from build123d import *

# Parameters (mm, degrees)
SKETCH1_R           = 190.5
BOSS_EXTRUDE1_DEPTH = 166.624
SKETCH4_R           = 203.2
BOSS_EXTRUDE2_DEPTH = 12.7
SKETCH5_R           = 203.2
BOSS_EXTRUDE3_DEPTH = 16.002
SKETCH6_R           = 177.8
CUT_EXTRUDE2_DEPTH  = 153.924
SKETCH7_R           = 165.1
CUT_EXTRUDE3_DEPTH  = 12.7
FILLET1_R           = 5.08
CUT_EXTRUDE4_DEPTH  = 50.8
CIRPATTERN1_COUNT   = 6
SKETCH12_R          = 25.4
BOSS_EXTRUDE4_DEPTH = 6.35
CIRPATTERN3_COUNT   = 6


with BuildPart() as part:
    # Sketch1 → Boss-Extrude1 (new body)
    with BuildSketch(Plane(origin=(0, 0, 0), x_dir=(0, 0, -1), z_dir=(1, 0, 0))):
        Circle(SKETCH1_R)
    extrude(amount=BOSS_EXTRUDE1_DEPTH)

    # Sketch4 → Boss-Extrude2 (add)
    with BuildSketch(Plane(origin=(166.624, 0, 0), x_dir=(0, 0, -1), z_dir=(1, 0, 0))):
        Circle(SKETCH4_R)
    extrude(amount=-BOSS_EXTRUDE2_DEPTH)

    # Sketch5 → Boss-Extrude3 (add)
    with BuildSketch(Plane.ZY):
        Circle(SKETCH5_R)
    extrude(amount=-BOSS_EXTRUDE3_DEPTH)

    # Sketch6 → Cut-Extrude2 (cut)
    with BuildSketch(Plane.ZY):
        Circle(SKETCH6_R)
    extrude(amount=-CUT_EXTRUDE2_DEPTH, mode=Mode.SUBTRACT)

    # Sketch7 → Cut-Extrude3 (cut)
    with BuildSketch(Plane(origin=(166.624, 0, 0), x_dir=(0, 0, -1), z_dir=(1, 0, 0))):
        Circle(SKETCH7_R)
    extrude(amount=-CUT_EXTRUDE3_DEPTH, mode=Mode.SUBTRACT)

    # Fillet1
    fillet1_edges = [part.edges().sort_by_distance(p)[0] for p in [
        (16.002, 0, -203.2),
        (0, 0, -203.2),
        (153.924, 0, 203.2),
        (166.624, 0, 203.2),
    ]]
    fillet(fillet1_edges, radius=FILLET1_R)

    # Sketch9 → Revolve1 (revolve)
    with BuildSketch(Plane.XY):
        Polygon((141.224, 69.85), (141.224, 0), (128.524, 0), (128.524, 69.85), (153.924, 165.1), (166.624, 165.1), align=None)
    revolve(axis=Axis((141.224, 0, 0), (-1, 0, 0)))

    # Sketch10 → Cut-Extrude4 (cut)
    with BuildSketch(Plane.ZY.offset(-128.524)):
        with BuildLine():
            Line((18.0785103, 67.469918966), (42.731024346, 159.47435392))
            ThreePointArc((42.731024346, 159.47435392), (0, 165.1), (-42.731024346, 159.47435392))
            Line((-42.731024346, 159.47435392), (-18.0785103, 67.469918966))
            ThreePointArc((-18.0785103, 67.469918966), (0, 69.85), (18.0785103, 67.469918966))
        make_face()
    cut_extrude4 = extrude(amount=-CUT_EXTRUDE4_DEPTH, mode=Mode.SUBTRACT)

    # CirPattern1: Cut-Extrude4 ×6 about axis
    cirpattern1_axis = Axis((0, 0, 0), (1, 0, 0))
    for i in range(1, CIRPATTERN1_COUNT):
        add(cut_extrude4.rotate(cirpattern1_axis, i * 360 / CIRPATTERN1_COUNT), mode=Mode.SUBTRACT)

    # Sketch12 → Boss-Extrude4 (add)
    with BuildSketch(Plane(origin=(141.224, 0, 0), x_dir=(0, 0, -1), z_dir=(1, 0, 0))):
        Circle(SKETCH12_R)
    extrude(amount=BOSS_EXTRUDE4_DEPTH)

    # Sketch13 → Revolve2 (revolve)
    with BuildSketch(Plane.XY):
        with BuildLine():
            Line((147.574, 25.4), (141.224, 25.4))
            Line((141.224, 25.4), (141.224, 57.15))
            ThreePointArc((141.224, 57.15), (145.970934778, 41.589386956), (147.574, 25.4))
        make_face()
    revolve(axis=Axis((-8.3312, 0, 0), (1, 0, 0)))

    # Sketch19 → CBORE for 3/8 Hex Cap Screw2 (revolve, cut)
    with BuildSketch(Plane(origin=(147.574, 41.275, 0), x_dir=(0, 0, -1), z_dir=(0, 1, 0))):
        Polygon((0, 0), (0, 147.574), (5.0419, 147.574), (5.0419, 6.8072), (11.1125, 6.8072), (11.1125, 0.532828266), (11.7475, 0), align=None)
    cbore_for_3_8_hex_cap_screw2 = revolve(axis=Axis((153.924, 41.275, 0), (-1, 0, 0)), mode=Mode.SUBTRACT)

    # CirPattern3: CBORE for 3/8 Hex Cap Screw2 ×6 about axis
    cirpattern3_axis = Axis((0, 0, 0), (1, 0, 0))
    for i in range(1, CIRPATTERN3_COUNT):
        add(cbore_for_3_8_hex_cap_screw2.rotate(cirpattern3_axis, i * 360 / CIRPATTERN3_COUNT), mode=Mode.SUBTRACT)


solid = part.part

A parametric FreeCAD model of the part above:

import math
import FreeCAD as App
import Part
import Sketcher
from FreeCAD import Vector
Q = App.Units.Quantity


def edges_at(feature, points):
    """Names of the edges that pass closest to the given points."""
    edges = feature.Shape.Edges
    near = lambda p: min(range(len(edges)), key=lambda i: edges[i].distToShape(Part.Vertex(*p))[0])
    return sorted({f"Edge{near(p) + 1}" for p in points})

doc = App.newDocument("Part")
body = doc.addObject("PartDesign::Body", "Body")

# Sketch on YZ plane
sketch1 = doc.addObject("Sketcher::SketchObject", "Sketch")
body.addObject(sketch1)
sketch1.AttachmentSupport = (doc.YZ_Plane, [""])
sketch1.MapMode = "FlatFace"
sketch1.addGeometry(Part.Circle(Vector(0, 0, 0), Vector(0, 0, 1), 190), False)
sketch1.addConstraint(Sketcher.Constraint("Coincident", 0, 3, -1, 1))
sketch1.addConstraint(Sketcher.Constraint("Diameter", 0, Q("15 in")))
pad1 = doc.addObject("PartDesign::Pad", "Pad")
body.addObject(pad1)
pad1.Profile = sketch1
pad1.Length = Q("6.56 in")

# Sketch on YZ plane
sketch2 = doc.addObject("Sketcher::SketchObject", "Sketch001")
body.addObject(sketch2)
sketch2.AttachmentSupport = (doc.YZ_Plane, [""])
sketch2.MapMode = "FlatFace"
sketch2.AttachmentOffset = App.Placement(Vector(0, 0, 6.56 * 25.4), App.Rotation())
sketch2.addGeometry(Part.Circle(Vector(0, 0, 0), Vector(0, 0, 1), 203), False)
sketch2.addConstraint(Sketcher.Constraint("Coincident", 0, 3, -1, 1))
sketch2.addConstraint(Sketcher.Constraint("Diameter", 0, Q("16 in")))
pad2 = doc.addObject("PartDesign::Pad", "Pad001")
body.addObject(pad2)
pad2.Profile = sketch2
pad2.Length = Q("0.5 in")
pad2.Reversed = True

# Sketch on YZ plane
sketch3 = doc.addObject("Sketcher::SketchObject", "Sketch002")
body.addObject(sketch3)
sketch3.AttachmentSupport = (doc.YZ_Plane, [""])
sketch3.MapMode = "FlatFace"
sketch3.addGeometry(Part.Circle(Vector(0, 0, 0), Vector(0, 0, 1), 203), False)
sketch3.addConstraint(Sketcher.Constraint("Coincident", 0, 3, -1, 1))
sketch3.addConstraint(Sketcher.Constraint("Diameter", 0, Q("16 in")))
pad3 = doc.addObject("PartDesign::Pad", "Pad002")
body.addObject(pad3)
pad3.Profile = sketch3
pad3.Length = Q("0.63 in")

# Sketch on YZ plane
sketch4 = doc.addObject("Sketcher::SketchObject", "Sketch003")
body.addObject(sketch4)
sketch4.AttachmentSupport = (doc.YZ_Plane, [""])
sketch4.MapMode = "FlatFace"
sketch4.addGeometry(Part.Circle(Vector(0, 0, 0), Vector(0, 0, 1), 178), False)
sketch4.addConstraint(Sketcher.Constraint("Coincident", 0, 3, -1, 1))
sketch4.addConstraint(Sketcher.Constraint("Diameter", 0, Q("14 in")))
pocket1 = doc.addObject("PartDesign::Pocket", "Pocket")
body.addObject(pocket1)
pocket1.Profile = sketch4
pocket1.Length = Q("6.06 in")
pocket1.Reversed = True

# Sketch on YZ plane
sketch5 = doc.addObject("Sketcher::SketchObject", "Sketch004")
body.addObject(sketch5)
sketch5.AttachmentSupport = (doc.YZ_Plane, [""])
sketch5.MapMode = "FlatFace"
sketch5.AttachmentOffset = App.Placement(Vector(0, 0, 6.56 * 25.4), App.Rotation())
sketch5.addGeometry(Part.Circle(Vector(0, 0, 0), Vector(0, 0, 1), 165), False)
sketch5.addConstraint(Sketcher.Constraint("Coincident", 0, 3, -1, 1))
sketch5.addConstraint(Sketcher.Constraint("Diameter", 0, Q("13 in")))
pocket2 = doc.addObject("PartDesign::Pocket", "Pocket001")
body.addObject(pocket2)
pocket2.Profile = sketch5
pocket2.Length = Q("0.5 in")
doc.recompute()

fillet = doc.addObject("PartDesign::Fillet", "Fillet")
body.addObject(fillet)
fillet.Base = (pocket2, edges_at(pocket2, [
    (16.002, 0, -203.2),
    (0, 0, -203.2),
    (153.924, 0, 203.2),
    (166.624, 0, 203.2),
]))
fillet.Radius = Q("0.2 in")

# Sketch on XY plane
sketch6 = doc.addObject("Sketcher::SketchObject", "Sketch005")
body.addObject(sketch6)
sketch6.AttachmentSupport = (doc.XY_Plane, [""])
sketch6.MapMode = "FlatFace"
sketch6.addGeometry(Part.LineSegment(Vector(141, 0, 0), Vector(141, 70, 0)), False)
sketch6.addGeometry(Part.LineSegment(Vector(141, 70, 0), Vector(167, 165, 0)), False)
sketch6.addGeometry(Part.LineSegment(Vector(167, 165, 0), Vector(154, 165, 0)), False)
sketch6.addGeometry(Part.LineSegment(Vector(154, 165, 0), Vector(129, 70, 0)), False)
sketch6.addGeometry(Part.LineSegment(Vector(129, 70, 0), Vector(129, 0, 0)), False)
sketch6.addGeometry(Part.LineSegment(Vector(129, 0, 0), Vector(141, 0, 0)), False)
sketch6.addConstraint(Sketcher.Constraint("Coincident", 0, 2, 1, 1))
sketch6.addConstraint(Sketcher.Constraint("Coincident", 1, 2, 2, 1))
sketch6.addConstraint(Sketcher.Constraint("Coincident", 2, 2, 3, 1))
sketch6.addConstraint(Sketcher.Constraint("Coincident", 3, 2, 4, 1))
sketch6.addConstraint(Sketcher.Constraint("Coincident", 4, 2, 5, 1))
sketch6.addConstraint(Sketcher.Constraint("Coincident", 5, 2, 0, 1))
sketch6.addConstraint(Sketcher.Constraint("Vertical", 0))
sketch6.addConstraint(Sketcher.Constraint("Horizontal", 2))
sketch6.addConstraint(Sketcher.Constraint("Vertical", 4))
sketch6.addConstraint(Sketcher.Constraint("Horizontal", 5))
sketch6.addConstraint(Sketcher.Constraint("PointOnObject", 4, 2, -1))
sketch6.addConstraint(Sketcher.Constraint("Parallel", 1, 3))
sketch6.addConstraint(Sketcher.Constraint("Horizontal", 0, 2, 3, 2))
sketch6.addConstraint(Sketcher.Constraint("DistanceX", 2, 2, 2, 1, Q("0.5 in")))
sketch6.addConstraint(Sketcher.Constraint("DistanceX", 0, 2, 1, 2, Q("1 in")))
sketch6.addConstraint(Sketcher.Constraint("DistanceY", 0, 1, 0, 2, Q("2.75 in")))
sketch6.addConstraint(Sketcher.Constraint("DistanceY", -1, 1, 1, 2, Q("6.5 in")))
sketch6.addConstraint(Sketcher.Constraint("DistanceX", -1, 1, 0, 2, Q("5.56 in")))
revolution = doc.addObject("PartDesign::Revolution", "Revolution")
body.addObject(revolution)
revolution.Profile = sketch6
revolution.ReferenceAxis = (sketch6, ["H_Axis"])
revolution.Angle = 360

# Sketch on YZ plane
sketch7 = doc.addObject("Sketcher::SketchObject", "Sketch006")
body.addObject(sketch7)
sketch7.AttachmentSupport = (doc.YZ_Plane, [""])
sketch7.MapMode = "FlatFace"
sketch7.AttachmentOffset = App.Placement(Vector(0, 0, 5.06 * 25.4), App.Rotation())
sketch7.addGeometry(Part.LineSegment(Vector(67, 18, 0), Vector(159, 43, 0)), False)
sketch7.addGeometry(Part.ArcOfCircle(Part.Circle(Vector(0, 0, 0), Vector(0, 0, 1), 165), math.radians(-15), math.radians(15)), False)
sketch7.addGeometry(Part.LineSegment(Vector(159, -43, 0), Vector(67, -18, 0)), False)
sketch7.addGeometry(Part.ArcOfCircle(Part.Circle(Vector(0, 0, 0), Vector(0, 0, 1), 70), math.radians(-15), math.radians(15)), False)
sketch7.addConstraint(Sketcher.Constraint("Coincident", 0, 2, 1, 2))
sketch7.addConstraint(Sketcher.Constraint("Coincident", 1, 1, 2, 1))
sketch7.addConstraint(Sketcher.Constraint("Coincident", 2, 2, 3, 1))
sketch7.addConstraint(Sketcher.Constraint("Coincident", 3, 2, 0, 1))
sketch7.addConstraint(Sketcher.Constraint("Coincident", 1, 3, -1, 1))
sketch7.addConstraint(Sketcher.Constraint("Coincident", 3, 3, -1, 1))
sketch7.addConstraint(Sketcher.Constraint("Vertical", 0, 2, 1, 1))
sketch7.addConstraint(Sketcher.Constraint("Vertical", 2, 2, 3, 2))
sketch7.addConstraint(Sketcher.Constraint("Radius", 1, Q("6.5 in")))
sketch7.addConstraint(Sketcher.Constraint("Radius", 3, Q("2.75 in")))
sketch7.addConstraint(Sketcher.Constraint("Angle", 0, Q("15 deg")))
sketch7.addConstraint(Sketcher.Constraint("DistanceX", -1, 1, 2, 2, 67.469919))
pocket3 = doc.addObject("PartDesign::Pocket", "Pocket002")
body.addObject(pocket3)
pocket3.Profile = sketch7
pocket3.Length = Q("2 in")
pocket3.Reversed = True
doc.recompute()

polarpattern = doc.addObject("PartDesign::PolarPattern", "PolarPattern")
body.addObject(polarpattern)
polarpattern.Originals = [pocket3]
polarpattern.Axis = (doc.X_Axis, [""])
polarpattern.Angle = 360
polarpattern.Occurrences = 6
body.Tip = polarpattern

# Sketch on YZ plane
sketch8 = doc.addObject("Sketcher::SketchObject", "Sketch007")
body.addObject(sketch8)
sketch8.AttachmentSupport = (doc.YZ_Plane, [""])
sketch8.MapMode = "FlatFace"
sketch8.AttachmentOffset = App.Placement(Vector(0, 0, 5.56 * 25.4), App.Rotation())
sketch8.addGeometry(Part.Circle(Vector(0, 0, 0), Vector(0, 0, 1), 25), False)
sketch8.addConstraint(Sketcher.Constraint("Coincident", 0, 3, -1, 1))
sketch8.addConstraint(Sketcher.Constraint("Diameter", 0, Q("2 in")))
pad4 = doc.addObject("PartDesign::Pad", "Pad003")
body.addObject(pad4)
pad4.Profile = sketch8
pad4.Length = Q("0.25 in")

# Sketch on XY plane
sketch9 = doc.addObject("Sketcher::SketchObject", "Sketch008")
body.addObject(sketch9)
sketch9.AttachmentSupport = (doc.XY_Plane, [""])
sketch9.MapMode = "FlatFace"
sketch9.addGeometry(Part.LineSegment(Vector(141, 25, 0), Vector(148, 25, 0)), False)
sketch9.addGeometry(Part.ArcOfCircle(Part.Circle(Vector(65, 25, 0), Vector(0, 0, 1), 83), math.radians(0), math.radians(23)), False)
sketch9.addGeometry(Part.LineSegment(Vector(141, 57, 0), Vector(141, 25, 0)), False)
sketch9.addConstraint(Sketcher.Constraint("Coincident", 0, 2, 1, 1))
sketch9.addConstraint(Sketcher.Constraint("Coincident", 1, 2, 2, 1))
sketch9.addConstraint(Sketcher.Constraint("Coincident", 2, 2, 0, 1))
sketch9.addConstraint(Sketcher.Constraint("Horizontal", 0))
sketch9.addConstraint(Sketcher.Constraint("Vertical", 2))
sketch9.addConstraint(Sketcher.Constraint("Horizontal", 1, 3, 0, 2))
sketch9.addConstraint(Sketcher.Constraint("Radius", 1, Q("3.25 in")))
sketch9.addConstraint(Sketcher.Constraint("DistanceY", -1, 1, 1, 3, Q("1 in")))
sketch9.addConstraint(Sketcher.Constraint("DistanceX", 1, 3, 1, 2, Q("3 in")))
sketch9.addConstraint(Sketcher.Constraint("DistanceX", -1, 1, 1, 3, Q("2.56 in")))
revolution2 = doc.addObject("PartDesign::Revolution", "Revolution001")
body.addObject(revolution2)
revolution2.Profile = sketch9
revolution2.ReferenceAxis = (sketch9, ["H_Axis"])
revolution2.Angle = 360

# Sketch on XZ plane
sketch10 = doc.addObject("Sketcher::SketchObject", "Sketch009")
body.addObject(sketch10)
sketch10.AttachmentSupport = (doc.XZ_Plane, [""])
sketch10.MapMode = "FlatFace"
sketch10.AttachmentOffset = App.Placement(Vector(0, 0, -1.625 * 25.4), App.Rotation())
sketch10.addGeometry(Part.LineSegment(Vector(0, 0, 0), Vector(147.6, 0, 0)), False)
sketch10.addGeometry(Part.LineSegment(Vector(147.6, 0, 0), Vector(147.6, -11.7, 0)), False)
sketch10.addGeometry(Part.LineSegment(Vector(147.6, -11.7, 0), Vector(147, -11.1, 0)), False)
sketch10.addGeometry(Part.LineSegment(Vector(147, -11.1, 0), Vector(140.8, -11.1, 0)), False)
sketch10.addGeometry(Part.LineSegment(Vector(140.8, -11.1, 0), Vector(140.8, -5, 0)), False)
sketch10.addGeometry(Part.LineSegment(Vector(140.8, -5, 0), Vector(0, -5, 0)), False)
sketch10.addGeometry(Part.LineSegment(Vector(0, -5, 0), Vector(0, 0, 0)), False)
sketch10.addConstraint(Sketcher.Constraint("Coincident", 0, 2, 1, 1))
sketch10.addConstraint(Sketcher.Constraint("Coincident", 1, 2, 2, 1))
sketch10.addConstraint(Sketcher.Constraint("Coincident", 2, 2, 3, 1))
sketch10.addConstraint(Sketcher.Constraint("Coincident", 3, 2, 4, 1))
sketch10.addConstraint(Sketcher.Constraint("Coincident", 4, 2, 5, 1))
sketch10.addConstraint(Sketcher.Constraint("Coincident", 5, 2, 6, 1))
sketch10.addConstraint(Sketcher.Constraint("Coincident", 6, 2, 0, 1))
sketch10.addConstraint(Sketcher.Constraint("Horizontal", 0))
sketch10.addConstraint(Sketcher.Constraint("Vertical", 1))
sketch10.addConstraint(Sketcher.Constraint("Horizontal", 3))
sketch10.addConstraint(Sketcher.Constraint("Vertical", 4))
sketch10.addConstraint(Sketcher.Constraint("Horizontal", 5))
sketch10.addConstraint(Sketcher.Constraint("Vertical", 6))
sketch10.addConstraint(Sketcher.Constraint("Coincident", 6, 2, -1, 1))
sketch10.addConstraint(Sketcher.Constraint("Angle", 2, Q("130 deg")))
sketch10.addConstraint(Sketcher.Constraint("DistanceX", 0, 1, 0, 2, Q("5.81 in")))
sketch10.addConstraint(Sketcher.Constraint("DistanceX", 5, 2, 5, 1, Q("5.542 in")))
sketch10.addConstraint(Sketcher.Constraint("DistanceY", 4, 1, 4, 2, Q("0.239 in")))
sketch10.addConstraint(Sketcher.Constraint("DistanceY", 1, 2, 1, 1, Q("0.4625 in")))
sketch10.addConstraint(Sketcher.Constraint("DistanceY", 6, 1, 6, 2, Q("0.1985 in")))
groove = doc.addObject("PartDesign::Groove", "Groove")
body.addObject(groove)
groove.Profile = sketch10
groove.ReferenceAxis = (sketch10, ["H_Axis"])
groove.Angle = 360
doc.recompute()

polarpattern2 = doc.addObject("PartDesign::PolarPattern", "PolarPattern001")
body.addObject(polarpattern2)
polarpattern2.Originals = [groove]
polarpattern2.Axis = (doc.X_Axis, [""])
polarpattern2.Angle = 360
polarpattern2.Occurrences = 6
body.Tip = polarpattern2

doc.recompute()
